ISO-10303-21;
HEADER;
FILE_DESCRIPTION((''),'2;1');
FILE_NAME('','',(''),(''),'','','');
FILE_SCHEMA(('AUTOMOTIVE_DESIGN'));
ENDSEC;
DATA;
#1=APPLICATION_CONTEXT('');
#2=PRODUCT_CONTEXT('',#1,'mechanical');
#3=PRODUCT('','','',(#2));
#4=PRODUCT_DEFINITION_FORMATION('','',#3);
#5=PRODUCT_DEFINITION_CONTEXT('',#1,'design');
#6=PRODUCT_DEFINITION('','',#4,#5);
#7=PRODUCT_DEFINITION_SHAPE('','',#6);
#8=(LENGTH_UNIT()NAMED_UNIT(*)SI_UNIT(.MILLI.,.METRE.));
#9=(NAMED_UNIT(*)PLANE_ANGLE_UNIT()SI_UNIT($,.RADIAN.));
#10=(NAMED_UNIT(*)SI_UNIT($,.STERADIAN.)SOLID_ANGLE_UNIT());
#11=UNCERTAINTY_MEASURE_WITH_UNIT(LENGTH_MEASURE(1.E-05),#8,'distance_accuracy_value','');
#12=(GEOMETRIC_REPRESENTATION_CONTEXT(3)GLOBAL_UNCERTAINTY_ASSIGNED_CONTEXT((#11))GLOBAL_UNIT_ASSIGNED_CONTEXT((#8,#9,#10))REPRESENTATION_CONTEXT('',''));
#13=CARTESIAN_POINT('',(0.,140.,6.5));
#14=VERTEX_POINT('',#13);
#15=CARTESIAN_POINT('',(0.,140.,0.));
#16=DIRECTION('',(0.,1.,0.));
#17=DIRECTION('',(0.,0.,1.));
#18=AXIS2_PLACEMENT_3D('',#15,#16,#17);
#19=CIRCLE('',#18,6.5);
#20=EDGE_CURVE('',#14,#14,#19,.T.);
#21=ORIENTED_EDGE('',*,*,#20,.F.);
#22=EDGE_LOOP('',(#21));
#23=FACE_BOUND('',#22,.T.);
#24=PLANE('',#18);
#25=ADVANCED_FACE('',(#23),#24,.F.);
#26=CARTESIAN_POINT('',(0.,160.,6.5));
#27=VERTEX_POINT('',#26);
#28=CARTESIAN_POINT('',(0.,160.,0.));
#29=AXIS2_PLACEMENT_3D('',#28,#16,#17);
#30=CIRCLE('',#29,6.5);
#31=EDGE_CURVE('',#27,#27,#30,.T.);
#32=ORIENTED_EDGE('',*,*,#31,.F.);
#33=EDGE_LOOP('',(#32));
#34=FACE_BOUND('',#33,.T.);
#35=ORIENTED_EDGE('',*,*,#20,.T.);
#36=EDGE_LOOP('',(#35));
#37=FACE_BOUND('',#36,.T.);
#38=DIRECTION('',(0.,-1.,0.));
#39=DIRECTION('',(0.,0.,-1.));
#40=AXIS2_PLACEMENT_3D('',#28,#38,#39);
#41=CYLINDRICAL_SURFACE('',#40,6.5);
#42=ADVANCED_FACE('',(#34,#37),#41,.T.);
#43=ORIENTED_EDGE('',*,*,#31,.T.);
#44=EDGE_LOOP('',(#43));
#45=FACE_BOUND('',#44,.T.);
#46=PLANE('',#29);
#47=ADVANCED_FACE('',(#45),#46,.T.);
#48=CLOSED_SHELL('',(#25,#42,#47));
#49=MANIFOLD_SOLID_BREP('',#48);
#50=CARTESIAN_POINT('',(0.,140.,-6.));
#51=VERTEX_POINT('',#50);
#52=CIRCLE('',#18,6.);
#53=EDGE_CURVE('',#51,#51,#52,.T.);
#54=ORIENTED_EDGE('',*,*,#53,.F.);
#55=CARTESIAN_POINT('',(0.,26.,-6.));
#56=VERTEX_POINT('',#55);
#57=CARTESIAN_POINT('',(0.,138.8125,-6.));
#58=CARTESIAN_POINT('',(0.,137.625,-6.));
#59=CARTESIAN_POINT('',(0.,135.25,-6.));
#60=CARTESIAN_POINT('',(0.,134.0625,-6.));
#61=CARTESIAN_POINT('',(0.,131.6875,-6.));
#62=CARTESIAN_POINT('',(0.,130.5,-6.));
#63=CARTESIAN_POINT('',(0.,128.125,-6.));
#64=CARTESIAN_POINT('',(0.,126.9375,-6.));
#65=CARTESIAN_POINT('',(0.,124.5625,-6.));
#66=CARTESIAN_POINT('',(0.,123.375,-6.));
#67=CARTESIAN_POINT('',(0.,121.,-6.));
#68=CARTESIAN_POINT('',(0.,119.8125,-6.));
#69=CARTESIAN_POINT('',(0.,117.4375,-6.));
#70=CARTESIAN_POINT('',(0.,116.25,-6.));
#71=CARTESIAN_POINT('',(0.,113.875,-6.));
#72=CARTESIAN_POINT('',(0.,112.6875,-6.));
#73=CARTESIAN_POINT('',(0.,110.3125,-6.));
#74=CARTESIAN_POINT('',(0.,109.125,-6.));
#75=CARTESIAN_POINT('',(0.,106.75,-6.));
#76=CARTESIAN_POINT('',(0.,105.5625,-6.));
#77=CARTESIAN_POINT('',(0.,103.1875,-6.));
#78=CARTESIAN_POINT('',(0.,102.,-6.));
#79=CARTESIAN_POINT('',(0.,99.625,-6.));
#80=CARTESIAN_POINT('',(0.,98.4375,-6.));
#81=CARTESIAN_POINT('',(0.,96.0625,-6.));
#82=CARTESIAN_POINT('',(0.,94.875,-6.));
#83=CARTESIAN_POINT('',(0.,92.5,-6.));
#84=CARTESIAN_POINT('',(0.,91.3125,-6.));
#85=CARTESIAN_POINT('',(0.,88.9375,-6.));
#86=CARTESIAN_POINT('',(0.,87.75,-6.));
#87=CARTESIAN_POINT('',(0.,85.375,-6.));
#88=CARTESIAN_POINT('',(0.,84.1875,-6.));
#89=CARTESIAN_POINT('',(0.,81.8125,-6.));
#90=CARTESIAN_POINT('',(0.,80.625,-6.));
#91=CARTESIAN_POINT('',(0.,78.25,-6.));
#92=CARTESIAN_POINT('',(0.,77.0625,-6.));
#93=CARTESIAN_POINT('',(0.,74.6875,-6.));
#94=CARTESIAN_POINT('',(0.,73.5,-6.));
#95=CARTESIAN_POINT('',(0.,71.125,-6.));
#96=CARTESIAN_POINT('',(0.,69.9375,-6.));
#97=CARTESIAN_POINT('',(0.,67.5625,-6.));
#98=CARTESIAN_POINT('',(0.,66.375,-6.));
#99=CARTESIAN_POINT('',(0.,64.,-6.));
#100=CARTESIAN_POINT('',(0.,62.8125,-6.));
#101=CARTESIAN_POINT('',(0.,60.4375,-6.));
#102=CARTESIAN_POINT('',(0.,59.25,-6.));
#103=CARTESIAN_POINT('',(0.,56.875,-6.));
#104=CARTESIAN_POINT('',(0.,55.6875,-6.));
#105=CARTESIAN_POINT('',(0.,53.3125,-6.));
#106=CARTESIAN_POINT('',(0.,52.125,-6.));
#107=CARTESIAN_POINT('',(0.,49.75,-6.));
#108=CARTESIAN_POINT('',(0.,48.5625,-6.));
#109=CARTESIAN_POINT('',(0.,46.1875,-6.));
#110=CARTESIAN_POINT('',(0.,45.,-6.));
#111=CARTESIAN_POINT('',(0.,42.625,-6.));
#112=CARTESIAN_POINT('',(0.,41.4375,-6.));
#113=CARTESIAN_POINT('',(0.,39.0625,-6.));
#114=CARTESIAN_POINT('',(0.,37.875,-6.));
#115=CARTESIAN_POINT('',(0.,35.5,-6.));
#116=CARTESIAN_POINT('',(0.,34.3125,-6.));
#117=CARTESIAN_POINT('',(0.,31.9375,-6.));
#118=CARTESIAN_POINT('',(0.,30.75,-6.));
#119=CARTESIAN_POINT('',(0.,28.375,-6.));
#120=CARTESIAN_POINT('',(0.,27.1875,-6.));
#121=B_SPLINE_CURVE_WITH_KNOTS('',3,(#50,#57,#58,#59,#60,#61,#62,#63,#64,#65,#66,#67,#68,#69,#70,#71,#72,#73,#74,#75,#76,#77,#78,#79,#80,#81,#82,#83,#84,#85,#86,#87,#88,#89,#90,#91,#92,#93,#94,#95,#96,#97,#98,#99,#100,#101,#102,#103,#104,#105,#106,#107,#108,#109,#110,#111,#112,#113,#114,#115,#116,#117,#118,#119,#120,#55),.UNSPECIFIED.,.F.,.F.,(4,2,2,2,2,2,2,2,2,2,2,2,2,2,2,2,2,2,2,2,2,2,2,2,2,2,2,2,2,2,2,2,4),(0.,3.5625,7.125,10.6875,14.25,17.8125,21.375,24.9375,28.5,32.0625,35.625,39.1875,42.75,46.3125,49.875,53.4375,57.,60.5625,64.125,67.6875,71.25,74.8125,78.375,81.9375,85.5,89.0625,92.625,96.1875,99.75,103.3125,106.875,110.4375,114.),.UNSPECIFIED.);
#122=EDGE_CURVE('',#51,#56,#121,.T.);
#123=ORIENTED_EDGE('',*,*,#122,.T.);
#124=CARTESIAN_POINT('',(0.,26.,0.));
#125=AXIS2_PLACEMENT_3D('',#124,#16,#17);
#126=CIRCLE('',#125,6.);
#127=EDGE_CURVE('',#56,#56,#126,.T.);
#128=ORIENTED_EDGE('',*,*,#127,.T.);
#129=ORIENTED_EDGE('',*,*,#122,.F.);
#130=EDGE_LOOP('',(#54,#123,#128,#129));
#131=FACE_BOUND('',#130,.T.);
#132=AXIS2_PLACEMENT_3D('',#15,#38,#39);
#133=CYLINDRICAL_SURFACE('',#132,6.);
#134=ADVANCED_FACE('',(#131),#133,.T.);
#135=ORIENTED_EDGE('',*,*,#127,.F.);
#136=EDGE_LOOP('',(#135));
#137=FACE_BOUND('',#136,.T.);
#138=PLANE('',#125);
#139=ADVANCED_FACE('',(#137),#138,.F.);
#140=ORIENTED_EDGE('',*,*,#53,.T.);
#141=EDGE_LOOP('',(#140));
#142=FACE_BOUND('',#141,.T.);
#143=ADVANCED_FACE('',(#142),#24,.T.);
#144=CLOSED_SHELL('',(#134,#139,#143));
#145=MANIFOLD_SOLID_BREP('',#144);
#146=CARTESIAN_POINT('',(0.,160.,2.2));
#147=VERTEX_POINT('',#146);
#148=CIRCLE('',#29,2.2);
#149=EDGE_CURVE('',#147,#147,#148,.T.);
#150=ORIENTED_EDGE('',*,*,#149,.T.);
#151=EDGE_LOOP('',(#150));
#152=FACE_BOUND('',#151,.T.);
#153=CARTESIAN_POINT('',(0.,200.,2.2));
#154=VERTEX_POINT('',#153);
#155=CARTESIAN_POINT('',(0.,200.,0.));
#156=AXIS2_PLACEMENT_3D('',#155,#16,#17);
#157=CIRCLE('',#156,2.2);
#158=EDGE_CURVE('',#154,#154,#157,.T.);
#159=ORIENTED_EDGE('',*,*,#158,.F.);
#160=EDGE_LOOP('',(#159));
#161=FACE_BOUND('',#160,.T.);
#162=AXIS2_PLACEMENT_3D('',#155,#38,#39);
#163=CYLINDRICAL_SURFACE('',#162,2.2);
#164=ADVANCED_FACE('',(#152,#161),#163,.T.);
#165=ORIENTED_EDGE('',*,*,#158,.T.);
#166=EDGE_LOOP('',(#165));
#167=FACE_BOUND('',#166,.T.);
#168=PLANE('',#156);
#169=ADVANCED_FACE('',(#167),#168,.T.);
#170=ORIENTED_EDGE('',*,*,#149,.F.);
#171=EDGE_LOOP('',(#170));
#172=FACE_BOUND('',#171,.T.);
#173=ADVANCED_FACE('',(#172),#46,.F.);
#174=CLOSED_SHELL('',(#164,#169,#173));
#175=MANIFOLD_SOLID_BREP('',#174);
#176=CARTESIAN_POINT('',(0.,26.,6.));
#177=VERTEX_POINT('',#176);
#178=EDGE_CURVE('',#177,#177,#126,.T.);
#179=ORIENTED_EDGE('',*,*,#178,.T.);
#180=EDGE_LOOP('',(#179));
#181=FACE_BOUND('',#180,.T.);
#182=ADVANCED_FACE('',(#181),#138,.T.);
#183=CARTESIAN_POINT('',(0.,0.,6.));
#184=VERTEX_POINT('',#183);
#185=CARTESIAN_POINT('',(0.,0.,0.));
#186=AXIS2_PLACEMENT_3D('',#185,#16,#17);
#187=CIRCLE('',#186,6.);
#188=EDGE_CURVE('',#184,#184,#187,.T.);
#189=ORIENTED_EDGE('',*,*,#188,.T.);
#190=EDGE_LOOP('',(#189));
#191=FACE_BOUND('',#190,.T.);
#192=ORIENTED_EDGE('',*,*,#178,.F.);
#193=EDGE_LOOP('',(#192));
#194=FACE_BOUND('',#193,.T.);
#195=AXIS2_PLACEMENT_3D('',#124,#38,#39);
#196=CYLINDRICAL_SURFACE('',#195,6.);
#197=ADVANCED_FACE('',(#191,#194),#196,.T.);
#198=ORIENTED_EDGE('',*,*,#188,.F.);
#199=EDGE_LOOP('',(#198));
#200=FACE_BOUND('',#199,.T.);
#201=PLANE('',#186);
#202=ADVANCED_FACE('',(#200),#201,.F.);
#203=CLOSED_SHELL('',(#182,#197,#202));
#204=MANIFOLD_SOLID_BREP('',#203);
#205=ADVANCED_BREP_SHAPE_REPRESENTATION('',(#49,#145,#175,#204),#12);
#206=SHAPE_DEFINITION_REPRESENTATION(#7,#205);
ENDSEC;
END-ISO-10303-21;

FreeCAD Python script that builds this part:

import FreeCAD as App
import Part
import Sketcher

V = App.Vector

doc = App.newDocument("Part")
body = doc.addObject("PartDesign::Body", "Body")

# Sketch on XZ plane
sketch1 = body.newObject("Sketcher::SketchObject", "Sketch")
sketch1.AttachmentSupport = (doc.getObject("XZ_Plane"), [""])
sketch1.MapMode = "FlatFace"
sketch1.addGeometry(Part.Circle(V(0, 0, 0), V(0, 0, 1), 6), False)
sketch1.addConstraint([
    Sketcher.Constraint("Coincident", 0, 3, -1, 1),
    Sketcher.Constraint("Diameter", 0, 12.0),
])
pad1 = body.newObject("PartDesign::Pad", "Pad")
pad1.Profile = sketch1
pad1.Length = 26
pad1.Reversed = True
body2 = doc.addObject("PartDesign::Body", "Body001")

# Sketch on XZ plane
sketch2 = body2.newObject("Sketcher::SketchObject", "Sketch001")
sketch2.AttachmentSupport = (doc.getObject("XZ_Plane001"), [""])
sketch2.MapMode = "FlatFace"
sketch2.AttachmentOffset = App.Placement(V(0, 0, -26), App.Rotation())
sketch2.addGeometry(Part.Circle(V(0, 0, 0), V(0, 0, 1), 6), False)
sketch2.addConstraint([
    Sketcher.Constraint("Coincident", 0, 3, -1, 1),
    Sketcher.Constraint("Diameter", 0, 12.0),
])
pad2 = body2.newObject("PartDesign::Pad", "Pad001")
pad2.Profile = sketch2
pad2.Length = 114
pad2.Reversed = True
body3 = doc.addObject("PartDesign::Body", "Body002")

# Sketch on XZ plane
sketch3 = body3.newObject("Sketcher::SketchObject", "Sketch002")
sketch3.AttachmentSupport = (doc.getObject("XZ_Plane002"), [""])
sketch3.MapMode = "FlatFace"
sketch3.AttachmentOffset = App.Placement(V(0, 0, -140), App.Rotation())
sketch3.addGeometry(Part.Circle(V(0, 0, 0), V(0, 0, 1), 6), False)
sketch3.addConstraint([
    Sketcher.Constraint("Coincident", 0, 3, -1, 1),
    Sketcher.Constraint("Diameter", 0, 13.0),
])
pad3 = body3.newObject("PartDesign::Pad", "Pad002")
pad3.Profile = sketch3
pad3.Length = 20
pad3.Reversed = True
body4 = doc.addObject("PartDesign::Body", "Body003")

# Sketch on XZ plane
sketch4 = body4.newObject("Sketcher::SketchObject", "Sketch003")
sketch4.AttachmentSupport = (doc.getObject("XZ_Plane003"), [""])
sketch4.MapMode = "FlatFace"
sketch4.AttachmentOffset = App.Placement(V(0, 0, -160), App.Rotation())
sketch4.addGeometry(Part.Circle(V(0, 0, 0), V(0, 0, 1), 2.2), False)
sketch4.addConstraint([
    Sketcher.Constraint("Coincident", 0, 3, -1, 1),
    Sketcher.Constraint("Diameter", 0, 4.4),
])
pad4 = body4.newObject("PartDesign::Pad", "Pad003")
pad4.Profile = sketch4
pad4.Length = 40
pad4.Reversed = True

doc.recompute()
